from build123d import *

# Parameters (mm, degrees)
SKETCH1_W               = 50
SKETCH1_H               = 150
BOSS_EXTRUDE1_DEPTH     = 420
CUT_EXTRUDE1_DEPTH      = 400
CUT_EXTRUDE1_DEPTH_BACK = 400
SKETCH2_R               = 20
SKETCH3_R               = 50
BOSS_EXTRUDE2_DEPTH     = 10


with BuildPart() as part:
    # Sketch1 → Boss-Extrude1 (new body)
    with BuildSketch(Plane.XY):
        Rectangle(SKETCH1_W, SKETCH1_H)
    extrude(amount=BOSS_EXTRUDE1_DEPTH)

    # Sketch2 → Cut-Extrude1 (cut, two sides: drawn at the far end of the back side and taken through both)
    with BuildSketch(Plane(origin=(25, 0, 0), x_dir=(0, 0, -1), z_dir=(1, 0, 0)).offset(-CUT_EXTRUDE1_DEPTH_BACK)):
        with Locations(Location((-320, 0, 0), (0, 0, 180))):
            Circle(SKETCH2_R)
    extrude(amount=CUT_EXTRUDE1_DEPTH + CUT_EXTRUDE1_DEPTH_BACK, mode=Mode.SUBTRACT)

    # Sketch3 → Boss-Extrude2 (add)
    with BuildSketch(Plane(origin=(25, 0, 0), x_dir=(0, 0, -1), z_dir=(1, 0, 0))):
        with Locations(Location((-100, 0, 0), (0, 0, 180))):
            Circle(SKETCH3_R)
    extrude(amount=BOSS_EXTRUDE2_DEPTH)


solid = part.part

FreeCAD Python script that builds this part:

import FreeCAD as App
import Part
import Sketcher

V = App.Vector

doc = App.newDocument("Part")
body = doc.addObject("PartDesign::Body", "Body")

# Sketch on XY plane
sketch1 = doc.addObject("Sketcher::SketchObject", "Sketch")
body.addObject(sketch1)
sketch1.AttachmentSupport = (doc.XY_Plane, [""])
sketch1.MapMode = "FlatFace"
sketch1.addGeometry([
    Part.LineSegment(V(-25, 75, 0), V(-25, -75, 0)),
    Part.LineSegment(V(-25, -75, 0), V(25, -75, 0)),
    Part.LineSegment(V(25, -75, 0), V(25, 75, 0)),
    Part.LineSegment(V(25, 75, 0), V(-25, 75, 0)),
], False)
sketch1.addConstraint([
    Sketcher.Constraint("Coincident", 0, 2, 1, 1),
    Sketcher.Constraint("Coincident", 1, 2, 2, 1),
    Sketcher.Constraint("Coincident", 2, 2, 3, 1),
    Sketcher.Constraint("Coincident", 3, 2, 0, 1),
    Sketcher.Constraint("Vertical", 0),
    Sketcher.Constraint("Horizontal", 1),
    Sketcher.Constraint("Vertical", 2),
    Sketcher.Constraint("Horizontal", 3),
    Sketcher.Constraint("Symmetric", 0, 2, 2, 2, -1, 1),
    Sketcher.Constraint("DistanceX", 1, 1, 1, 2, 50.0),
    Sketcher.Constraint("DistanceY", 0, 2, 0, 1, 150.0),
])
pad1 = doc.addObject("PartDesign::Pad", "Pad")
body.addObject(pad1)
pad1.Profile = sketch1
pad1.Length = 420

# Sketch on YZ plane
sketch2 = doc.addObject("Sketcher::SketchObject", "Sketch001")
body.addObject(sketch2)
sketch2.AttachmentSupport = (doc.YZ_Plane, [""])
sketch2.MapMode = "FlatFace"
sketch2.AttachmentOffset = App.Placement(V(0, 0, 25), App.Rotation())
sketch2.addGeometry(Part.Circle(V(0, 320, 0), V(0, 0, 1), 20), False)
sketch2.addConstraint([
    Sketcher.Constraint("PointOnObject", 0, 3, -2),
    Sketcher.Constraint("Diameter", 0, 40.0),
    Sketcher.Constraint("DistanceY", -1, 1, 0, 3, 320.0),
])
pocket1 = doc.addObject("PartDesign::Pocket", "Pocket")
body.addObject(pocket1)
pocket1.Profile = sketch2
pocket1.Type = "ThroughAll"
pocket1.Midplane = True

# Sketch on YZ plane
sketch3 = doc.addObject("Sketcher::SketchObject", "Sketch002")
body.addObject(sketch3)
sketch3.AttachmentSupport = (doc.YZ_Plane, [""])
sketch3.MapMode = "FlatFace"
sketch3.AttachmentOffset = App.Placement(V(0, 0, 25), App.Rotation())
sketch3.addGeometry(Part.Circle(V(0, 100, 0), V(0, 0, 1), 50), False)
sketch3.addConstraint([
    Sketcher.Constraint("PointOnObject", 0, 3, -2),
    Sketcher.Constraint("Diameter", 0, 100.0),
    Sketcher.Constraint("DistanceY", -1, 1, 0, 3, 100.0),
])
pad2 = doc.addObject("PartDesign::Pad", "Pad001")
body.addObject(pad2)
pad2.Profile = sketch3
pad2.Length = 10

doc.recompute()
